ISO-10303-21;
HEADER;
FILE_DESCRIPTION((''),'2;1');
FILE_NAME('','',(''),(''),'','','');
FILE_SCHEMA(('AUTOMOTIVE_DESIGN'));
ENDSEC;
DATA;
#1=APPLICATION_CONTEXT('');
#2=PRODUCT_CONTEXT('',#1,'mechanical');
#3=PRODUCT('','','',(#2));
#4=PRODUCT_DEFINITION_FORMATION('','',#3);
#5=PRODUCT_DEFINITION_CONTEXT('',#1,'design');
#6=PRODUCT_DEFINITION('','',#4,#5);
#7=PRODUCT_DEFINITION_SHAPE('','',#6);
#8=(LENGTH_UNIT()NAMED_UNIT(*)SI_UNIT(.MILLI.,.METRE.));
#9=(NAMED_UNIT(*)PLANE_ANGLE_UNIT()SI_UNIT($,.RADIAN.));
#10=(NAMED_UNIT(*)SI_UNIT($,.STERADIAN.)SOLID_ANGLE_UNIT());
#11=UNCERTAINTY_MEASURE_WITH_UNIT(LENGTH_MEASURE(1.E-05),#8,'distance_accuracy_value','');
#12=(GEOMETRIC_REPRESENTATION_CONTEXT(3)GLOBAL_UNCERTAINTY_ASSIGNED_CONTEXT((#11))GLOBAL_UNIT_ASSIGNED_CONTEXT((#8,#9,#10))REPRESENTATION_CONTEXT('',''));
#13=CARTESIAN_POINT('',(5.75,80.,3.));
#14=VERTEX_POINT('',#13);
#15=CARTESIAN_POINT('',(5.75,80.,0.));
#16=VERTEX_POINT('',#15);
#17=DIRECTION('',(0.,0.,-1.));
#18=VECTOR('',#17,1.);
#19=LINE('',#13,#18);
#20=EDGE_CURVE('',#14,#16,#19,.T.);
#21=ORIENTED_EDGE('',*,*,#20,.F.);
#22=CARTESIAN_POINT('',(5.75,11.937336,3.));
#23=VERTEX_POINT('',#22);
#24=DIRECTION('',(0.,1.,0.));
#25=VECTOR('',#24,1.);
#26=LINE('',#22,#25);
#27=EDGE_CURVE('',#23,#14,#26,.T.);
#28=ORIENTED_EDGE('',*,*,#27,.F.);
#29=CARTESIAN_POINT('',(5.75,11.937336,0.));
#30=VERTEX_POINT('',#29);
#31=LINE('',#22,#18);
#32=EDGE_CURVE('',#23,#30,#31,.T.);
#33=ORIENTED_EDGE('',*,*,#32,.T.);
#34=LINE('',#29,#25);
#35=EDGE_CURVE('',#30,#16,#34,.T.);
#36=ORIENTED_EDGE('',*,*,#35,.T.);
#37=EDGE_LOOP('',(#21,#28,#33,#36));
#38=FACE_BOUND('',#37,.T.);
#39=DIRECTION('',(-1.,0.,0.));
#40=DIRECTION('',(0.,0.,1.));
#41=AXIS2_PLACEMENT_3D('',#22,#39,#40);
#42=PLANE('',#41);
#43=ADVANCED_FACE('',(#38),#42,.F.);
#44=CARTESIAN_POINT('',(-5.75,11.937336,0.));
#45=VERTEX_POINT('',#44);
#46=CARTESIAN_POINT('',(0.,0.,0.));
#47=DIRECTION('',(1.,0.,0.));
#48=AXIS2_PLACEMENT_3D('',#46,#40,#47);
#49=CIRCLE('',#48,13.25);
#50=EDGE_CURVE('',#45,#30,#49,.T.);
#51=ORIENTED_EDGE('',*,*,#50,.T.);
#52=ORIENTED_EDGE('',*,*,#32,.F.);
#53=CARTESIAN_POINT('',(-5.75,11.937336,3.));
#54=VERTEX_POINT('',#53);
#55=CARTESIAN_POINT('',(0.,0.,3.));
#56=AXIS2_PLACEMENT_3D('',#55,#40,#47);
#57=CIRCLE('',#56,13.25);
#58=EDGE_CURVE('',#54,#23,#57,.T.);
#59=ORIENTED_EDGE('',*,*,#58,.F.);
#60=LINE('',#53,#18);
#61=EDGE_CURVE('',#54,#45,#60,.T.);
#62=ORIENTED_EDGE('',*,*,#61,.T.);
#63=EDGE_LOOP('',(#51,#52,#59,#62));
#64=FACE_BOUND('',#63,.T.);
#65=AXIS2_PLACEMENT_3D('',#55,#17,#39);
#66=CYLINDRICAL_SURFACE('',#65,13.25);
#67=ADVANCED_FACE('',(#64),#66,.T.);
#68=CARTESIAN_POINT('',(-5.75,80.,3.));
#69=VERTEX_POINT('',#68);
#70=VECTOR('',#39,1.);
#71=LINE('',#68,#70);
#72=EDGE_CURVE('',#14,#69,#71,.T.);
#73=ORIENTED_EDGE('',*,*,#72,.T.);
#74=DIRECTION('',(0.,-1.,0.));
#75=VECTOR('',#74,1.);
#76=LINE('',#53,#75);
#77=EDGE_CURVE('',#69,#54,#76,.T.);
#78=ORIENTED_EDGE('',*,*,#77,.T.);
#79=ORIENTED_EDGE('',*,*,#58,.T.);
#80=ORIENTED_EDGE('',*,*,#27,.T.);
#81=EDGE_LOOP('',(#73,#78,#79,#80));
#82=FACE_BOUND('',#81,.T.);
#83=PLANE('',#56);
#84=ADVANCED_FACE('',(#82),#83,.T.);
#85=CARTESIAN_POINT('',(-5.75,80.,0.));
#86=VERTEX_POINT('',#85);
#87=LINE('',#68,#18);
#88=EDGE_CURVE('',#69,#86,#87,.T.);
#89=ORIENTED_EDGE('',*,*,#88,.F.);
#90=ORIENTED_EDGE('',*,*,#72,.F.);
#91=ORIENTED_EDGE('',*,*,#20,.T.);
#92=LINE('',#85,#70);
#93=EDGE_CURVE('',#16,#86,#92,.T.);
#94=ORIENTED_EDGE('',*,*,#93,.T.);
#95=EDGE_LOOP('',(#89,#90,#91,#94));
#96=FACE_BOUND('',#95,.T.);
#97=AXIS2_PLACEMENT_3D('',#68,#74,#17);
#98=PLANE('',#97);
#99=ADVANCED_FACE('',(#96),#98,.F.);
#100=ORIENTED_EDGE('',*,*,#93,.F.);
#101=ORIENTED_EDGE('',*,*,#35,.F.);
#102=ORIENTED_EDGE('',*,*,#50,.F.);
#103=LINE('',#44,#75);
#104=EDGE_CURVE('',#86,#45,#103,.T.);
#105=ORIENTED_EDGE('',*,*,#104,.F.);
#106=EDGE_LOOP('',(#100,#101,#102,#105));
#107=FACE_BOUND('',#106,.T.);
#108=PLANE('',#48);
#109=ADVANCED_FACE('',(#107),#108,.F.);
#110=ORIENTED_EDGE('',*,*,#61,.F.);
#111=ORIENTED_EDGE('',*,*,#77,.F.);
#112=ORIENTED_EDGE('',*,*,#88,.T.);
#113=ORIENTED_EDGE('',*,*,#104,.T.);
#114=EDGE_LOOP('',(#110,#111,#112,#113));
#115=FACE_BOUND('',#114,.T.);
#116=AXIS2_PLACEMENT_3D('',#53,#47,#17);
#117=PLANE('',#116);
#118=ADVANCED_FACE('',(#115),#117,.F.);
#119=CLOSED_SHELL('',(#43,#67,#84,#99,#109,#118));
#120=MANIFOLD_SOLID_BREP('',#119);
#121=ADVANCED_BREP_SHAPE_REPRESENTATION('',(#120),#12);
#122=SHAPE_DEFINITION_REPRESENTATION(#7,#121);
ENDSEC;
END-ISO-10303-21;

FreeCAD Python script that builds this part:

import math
import FreeCAD as App
import Part
import Sketcher
Q = App.Units.Quantity

doc = App.newDocument("Part")
params = doc.addObject("Spreadsheet::Sheet", "Params")
for row, (alias, value) in enumerate([
    ("sketch1_radius", "13.25 mm"),
    ("sketch1_width", "11.5 mm"),
    ("pad1_length", "3 mm"),
], start=1):
    params.set(f"A{row}", alias)
    params.set(f"B{row}", "=" + value)
    params.setAlias(f"B{row}", alias)

body = doc.addObject("PartDesign::Body", "Body")

sketch1 = body.newObject("Sketcher::SketchObject", "Sketch")
sketch1.AttachmentSupport = (doc.getObject("XY_Plane"), [""])
sketch1.MapMode = "FlatFace"
sketch1.addGeometry([
    Part.LineSegment(App.Vector(-6, 80, 0), App.Vector(-6, 12, 0)),
    Part.ArcOfCircle(Part.Circle(App.Vector(0, 0, 0), App.Vector(0, 0, 1), 13), math.radians(116), math.radians(424)),
    Part.LineSegment(App.Vector(6, 12, 0), App.Vector(6, 80, 0)),
    Part.LineSegment(App.Vector(6, 80, 0), App.Vector(-6, 80, 0)),
], False)
sketch1.addConstraint([
    Sketcher.Constraint("Coincident", 0, 2, 1, 1),
    Sketcher.Constraint("Coincident", 1, 2, 2, 1),
    Sketcher.Constraint("Coincident", 2, 2, 3, 1),
    Sketcher.Constraint("Coincident", 3, 2, 0, 1),
    Sketcher.Constraint("Vertical", 0),
    Sketcher.Constraint("Vertical", 2),
    Sketcher.Constraint("Horizontal", 3),
    Sketcher.Constraint("Coincident", 1, 3, -1, 1),
    Sketcher.Constraint("Horizontal", 0, 2, 1, 2),
    Sketcher.Constraint("Radius", 1, Q("13.25 mm")),
    Sketcher.Constraint("DistanceX", 3, 2, 3, 1, Q("11.5 mm")),
    Sketcher.Constraint("DistanceY", -1, 1, 2, 2, Q("80 mm")),
])
sketch1.setExpression("Constraints[9]", "Params.sketch1_radius")
sketch1.setExpression("Constraints[10]", "Params.sketch1_width")
pad1 = body.newObject("PartDesign::Pad", "Pad")
pad1.Profile = sketch1
pad1.setExpression("Length", "Params.pad1_length")

doc.recompute()
